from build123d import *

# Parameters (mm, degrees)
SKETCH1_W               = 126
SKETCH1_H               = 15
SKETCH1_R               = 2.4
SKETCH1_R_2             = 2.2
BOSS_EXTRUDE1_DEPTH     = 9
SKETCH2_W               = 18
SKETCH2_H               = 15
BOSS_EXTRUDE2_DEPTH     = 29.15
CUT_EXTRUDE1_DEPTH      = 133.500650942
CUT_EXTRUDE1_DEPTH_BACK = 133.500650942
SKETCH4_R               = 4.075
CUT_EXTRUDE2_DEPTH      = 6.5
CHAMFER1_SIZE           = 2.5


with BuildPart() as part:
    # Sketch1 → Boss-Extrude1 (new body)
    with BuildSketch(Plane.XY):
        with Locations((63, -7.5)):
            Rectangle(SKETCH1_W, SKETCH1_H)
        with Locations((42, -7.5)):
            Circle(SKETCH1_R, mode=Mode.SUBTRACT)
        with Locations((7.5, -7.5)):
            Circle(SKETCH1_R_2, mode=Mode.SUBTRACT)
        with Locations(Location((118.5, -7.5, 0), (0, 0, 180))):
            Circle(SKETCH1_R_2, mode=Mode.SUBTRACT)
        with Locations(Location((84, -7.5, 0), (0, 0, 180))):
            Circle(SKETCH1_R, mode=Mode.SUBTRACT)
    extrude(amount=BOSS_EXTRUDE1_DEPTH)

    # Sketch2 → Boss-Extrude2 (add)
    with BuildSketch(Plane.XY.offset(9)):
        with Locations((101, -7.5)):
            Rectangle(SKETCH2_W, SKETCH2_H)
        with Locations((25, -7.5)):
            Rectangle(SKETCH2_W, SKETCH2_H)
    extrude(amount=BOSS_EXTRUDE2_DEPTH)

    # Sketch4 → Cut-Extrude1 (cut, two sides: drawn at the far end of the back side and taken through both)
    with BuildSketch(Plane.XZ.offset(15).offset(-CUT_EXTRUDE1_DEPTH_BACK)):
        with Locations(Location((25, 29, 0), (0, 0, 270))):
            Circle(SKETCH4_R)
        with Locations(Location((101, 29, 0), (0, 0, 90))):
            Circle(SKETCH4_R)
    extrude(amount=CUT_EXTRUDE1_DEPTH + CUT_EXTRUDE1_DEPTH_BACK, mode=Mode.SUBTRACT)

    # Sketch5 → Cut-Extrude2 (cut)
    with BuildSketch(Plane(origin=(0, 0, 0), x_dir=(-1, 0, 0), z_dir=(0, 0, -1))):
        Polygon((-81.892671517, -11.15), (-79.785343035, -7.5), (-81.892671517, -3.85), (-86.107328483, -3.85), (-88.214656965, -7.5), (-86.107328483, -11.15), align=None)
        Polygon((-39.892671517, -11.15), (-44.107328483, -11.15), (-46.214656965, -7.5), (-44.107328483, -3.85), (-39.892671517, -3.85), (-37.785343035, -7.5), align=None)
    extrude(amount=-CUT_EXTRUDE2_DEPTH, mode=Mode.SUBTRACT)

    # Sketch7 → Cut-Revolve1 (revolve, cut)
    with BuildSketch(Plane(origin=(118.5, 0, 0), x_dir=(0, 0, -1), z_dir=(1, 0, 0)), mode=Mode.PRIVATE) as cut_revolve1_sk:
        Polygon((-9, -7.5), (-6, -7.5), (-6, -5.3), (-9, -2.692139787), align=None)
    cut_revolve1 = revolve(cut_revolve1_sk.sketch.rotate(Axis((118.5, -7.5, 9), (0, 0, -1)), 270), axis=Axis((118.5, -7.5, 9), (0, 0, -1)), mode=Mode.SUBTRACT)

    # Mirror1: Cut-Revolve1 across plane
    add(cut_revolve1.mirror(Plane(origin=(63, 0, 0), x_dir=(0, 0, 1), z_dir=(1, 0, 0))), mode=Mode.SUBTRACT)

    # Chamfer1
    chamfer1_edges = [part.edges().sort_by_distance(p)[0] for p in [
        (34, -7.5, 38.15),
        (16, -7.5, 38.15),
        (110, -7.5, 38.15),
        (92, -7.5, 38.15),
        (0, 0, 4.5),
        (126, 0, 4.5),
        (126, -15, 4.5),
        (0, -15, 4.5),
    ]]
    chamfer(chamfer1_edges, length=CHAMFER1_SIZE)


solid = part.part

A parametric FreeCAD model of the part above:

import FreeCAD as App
import Part
import Sketcher

V = App.Vector
Q = App.Units.Quantity


def edges_at(feature, points):
    """Names of the edges that pass closest to the given points."""
    edges = feature.Shape.Edges
    near = lambda p: min(range(len(edges)), key=lambda i: edges[i].distToShape(Part.Vertex(*p))[0])
    return sorted({f"Edge{near(p) + 1}" for p in points})

doc = App.newDocument("Part")
body = doc.addObject("PartDesign::Body", "Body")

sketch1 = body.newObject("Sketcher::SketchObject", "Sketch")
sketch1.AttachmentSupport = (doc.getObject("XY_Plane"), [""])
sketch1.MapMode = "FlatFace"
sketch1.addGeometry([
    Part.LineSegment(V(0, 0, 0), V(0, -15, 0)),
    Part.LineSegment(V(0, -15, 0), V(126, -15, 0)),
    Part.LineSegment(V(126, -15, 0), V(126, 0, 0)),
    Part.LineSegment(V(126, 0, 0), V(0, 0, 0)),
    Part.Circle(V(7.5, -7.5, 0), V(0, 0, 1), 2.2),
    Part.Circle(V(42, -7.5, 0), V(0, 0, 1), 2.4),
    Part.Circle(V(84, -7.5, 0), V(0, 0, 1), 2.4),
    Part.Circle(V(118.5, -7.5, 0), V(0, 0, 1), 2.2),
], False)
sketch1.addConstraint([
    Sketcher.Constraint("Coincident", 0, 2, 1, 1),
    Sketcher.Constraint("Coincident", 1, 2, 2, 1),
    Sketcher.Constraint("Coincident", 2, 2, 3, 1),
    Sketcher.Constraint("Coincident", 3, 2, 0, 1),
    Sketcher.Constraint("Vertical", 0),
    Sketcher.Constraint("Horizontal", 1),
    Sketcher.Constraint("Vertical", 2),
    Sketcher.Constraint("Horizontal", 3),
    Sketcher.Constraint("Coincident", 3, 2, -1, 1),
    Sketcher.Constraint("Equal", 5, 6),
    Sketcher.Constraint("Equal", 4, 7),
    Sketcher.Constraint("Horizontal", 4, 3, 5, 3),
    Sketcher.Constraint("Horizontal", 5, 3, 6, 3),
    Sketcher.Constraint("Horizontal", 6, 3, 7, 3),
    Sketcher.Constraint("Diameter", 4, Q("4.4 mm")),
    Sketcher.Constraint("Diameter", 5, Q("4.8 mm")),
    Sketcher.Constraint("DistanceX", 1, 1, 1, 2, Q("126 mm")),
    Sketcher.Constraint("DistanceY", 0, 2, 0, 1, Q("15 mm")),
    Sketcher.Constraint("DistanceX", -1, 1, 5, 3, Q("42 mm")),
    Sketcher.Constraint("DistanceX", -1, 1, 6, 3, Q("84 mm")),
    Sketcher.Constraint("DistanceX", 4, 3, 7, 3, Q("111 mm")),
    Sketcher.Constraint("DistanceX", -1, 1, 4, 3, Q("7.5 mm")),
    Sketcher.Constraint("DistanceY", 4, 3, -1, 1, Q("7.5 mm")),
])
pad1 = body.newObject("PartDesign::Pad", "Pad")
pad1.Profile = sketch1
pad1.Length = 9

sketch2 = body.newObject("Sketcher::SketchObject", "Sketch001")
sketch2.AttachmentSupport = (doc.getObject("XY_Plane"), [""])
sketch2.MapMode = "FlatFace"
sketch2.AttachmentOffset = App.Placement(V(0, 0, 9), App.Rotation())
sketch2.addGeometry([
    Part.LineSegment(V(92, 0, 0), V(92, -15, 0)),
    Part.LineSegment(V(92, -15, 0), V(110, -15, 0)),
    Part.LineSegment(V(110, -15, 0), V(110, 0, 0)),
    Part.LineSegment(V(110, 0, 0), V(92, 0, 0)),
    Part.LineSegment(V(16, 0, 0), V(16, -15, 0)),
    Part.LineSegment(V(16, -15, 0), V(34, -15, 0)),
    Part.LineSegment(V(34, -15, 0), V(34, 0, 0)),
    Part.LineSegment(V(34, 0, 0), V(16, 0, 0)),
], False)
sketch2.addConstraint([
    Sketcher.Constraint("Coincident", 0, 2, 1, 1),
    Sketcher.Constraint("Coincident", 1, 2, 2, 1),
    Sketcher.Constraint("Coincident", 2, 2, 3, 1),
    Sketcher.Constraint("Coincident", 3, 2, 0, 1),
    Sketcher.Constraint("Coincident", 4, 2, 5, 1),
    Sketcher.Constraint("Coincident", 5, 2, 6, 1),
    Sketcher.Constraint("Coincident", 6, 2, 7, 1),
    Sketcher.Constraint("Coincident", 7, 2, 4, 1),
    Sketcher.Constraint("Vertical", 0),
    Sketcher.Constraint("Horizontal", 1),
    Sketcher.Constraint("Vertical", 2),
    Sketcher.Constraint("Horizontal", 3),
    Sketcher.Constraint("Vertical", 4),
    Sketcher.Constraint("Horizontal", 5),
    Sketcher.Constraint("Vertical", 6),
    Sketcher.Constraint("Horizontal", 7),
    Sketcher.Constraint("PointOnObject", 2, 2, -1),
    Sketcher.Constraint("PointOnObject", 6, 2, -1),
    Sketcher.Constraint("Horizontal", 1, 2, 4, 2),
    Sketcher.Constraint("Equal", 3, 5),
    Sketcher.Constraint("DistanceX", 1, 1, 1, 2, Q("18 mm")),
    Sketcher.Constraint("DistanceY", 0, 2, 0, 1, Q("15 mm")),
    Sketcher.Constraint("DistanceX", -1, 1, 0, 2, Q("92 mm")),
    Sketcher.Constraint("DistanceX", -1, 1, 4, 2, Q("16 mm")),
])
pad2 = body.newObject("PartDesign::Pad", "Pad001")
pad2.Profile = sketch2
pad2.Length = 29.15

sketch3 = body.newObject("Sketcher::SketchObject", "Sketch002")
sketch3.AttachmentSupport = (doc.getObject("XZ_Plane"), [""])
sketch3.MapMode = "FlatFace"
sketch3.AttachmentOffset = App.Placement(V(0, 0, 15), App.Rotation())
sketch3.addGeometry([
    Part.Circle(V(25, 29, 0), V(0, 0, 1), 4.1),
    Part.Circle(V(101, 29, 0), V(0, 0, 1), 4.1),
], False)
sketch3.addConstraint([
    Sketcher.Constraint("Equal", 0, 1),
    Sketcher.Constraint("Horizontal", 0, 3, 1, 3),
    Sketcher.Constraint("Diameter", 0, Q("8.15 mm")),
    Sketcher.Constraint("DistanceX", -1, 1, 0, 3, Q("25 mm")),
    Sketcher.Constraint("DistanceY", -1, 1, 0, 3, Q("29 mm")),
    Sketcher.Constraint("DistanceX", -1, 1, 1, 3, Q("101 mm")),
])
pocket1 = body.newObject("PartDesign::Pocket", "Pocket")
pocket1.Profile = sketch3
pocket1.Type = "ThroughAll"
pocket1.Midplane = True

sketch4 = body.newObject("Sketcher::SketchObject", "Sketch003")
sketch4.AttachmentSupport = (doc.getObject("XY_Plane"), [""])
sketch4.MapMode = "FlatFace"
sketch4.addGeometry([
    Part.LineSegment(V(81.9, -11.2, 0), V(79.8, -7.5, 0)),
    Part.LineSegment(V(79.8, -7.5, 0), V(81.9, -3.9, 0)),
    Part.LineSegment(V(81.9, -3.9, 0), V(86.1, -3.9, 0)),
    Part.LineSegment(V(86.1, -3.9, 0), V(88.2, -7.5, 0)),
    Part.LineSegment(V(88.2, -7.5, 0), V(86.1, -11.2, 0)),
    Part.LineSegment(V(86.1, -11.2, 0), V(81.9, -11.2, 0)),
    Part.LineSegment(V(44.1, -11.2, 0), V(39.9, -11.2, 0)),
    Part.LineSegment(V(39.9, -11.2, 0), V(37.8, -7.5, 0)),
    Part.LineSegment(V(37.8, -7.5, 0), V(39.9, -3.9, 0)),
    Part.LineSegment(V(39.9, -3.9, 0), V(44.1, -3.9, 0)),
    Part.LineSegment(V(44.1, -3.9, 0), V(46.2, -7.5, 0)),
    Part.LineSegment(V(46.2, -7.5, 0), V(44.1, -11.2, 0)),
], False)
sketch4.addConstraint([
    Sketcher.Constraint("Coincident", 0, 2, 1, 1),
    Sketcher.Constraint("Coincident", 1, 2, 2, 1),
    Sketcher.Constraint("Coincident", 2, 2, 3, 1),
    Sketcher.Constraint("Coincident", 3, 2, 4, 1),
    Sketcher.Constraint("Coincident", 4, 2, 5, 1),
    Sketcher.Constraint("Coincident", 5, 2, 0, 1),
    Sketcher.Constraint("Coincident", 6, 2, 7, 1),
    Sketcher.Constraint("Coincident", 7, 2, 8, 1),
    Sketcher.Constraint("Coincident", 8, 2, 9, 1),
    Sketcher.Constraint("Coincident", 9, 2, 10, 1),
    Sketcher.Constraint("Coincident", 10, 2, 11, 1),
    Sketcher.Constraint("Coincident", 11, 2, 6, 1),
    Sketcher.Constraint("Horizontal", 2),
    Sketcher.Constraint("Horizontal", 5),
    Sketcher.Constraint("Horizontal", 6),
    Sketcher.Constraint("Horizontal", 9),
    Sketcher.Constraint("Parallel", 0, 3),
    Sketcher.Constraint("Parallel", 1, 4),
    Sketcher.Constraint("Parallel", 3, 7),
    Sketcher.Constraint("Parallel", 4, 8),
    Sketcher.Constraint("Parallel", 7, 10),
    Sketcher.Constraint("Parallel", 8, 11),
    Sketcher.Constraint("Horizontal", 0, 2, 3, 2),
    Sketcher.Constraint("Horizontal", 5, 2, 6, 2),
    Sketcher.Constraint("Horizontal", 3, 2, 7, 2),
    Sketcher.Constraint("Horizontal", 2, 2, 8, 2),
    Sketcher.Constraint("Horizontal", 7, 2, 10, 2),
    Sketcher.Constraint("Vertical", 2, 2, 4, 2),
    Sketcher.Constraint("Vertical", 1, 2, 5, 2),
    Sketcher.Constraint("Equal", 5, 6),
    Sketcher.Constraint("Angle", 0, Q("120 deg")),
    Sketcher.Constraint("DistanceX", 6, 2, 5, 2, Q("42 mm")),
    Sketcher.Constraint("DistanceY", 0, 2, -1, 1, Q("7.5 mm")),
    Sketcher.Constraint("DistanceY", 4, 2, 2, 2, Q("7.3 mm")),
    Sketcher.Constraint("DistanceX", 2, 1, 2, 2, Q("4.214657 mm")),
    Sketcher.Constraint("DistanceX", -1, 1, 1, 2, Q("81.892672 mm")),
])
pocket2 = body.newObject("PartDesign::Pocket", "Pocket001")
pocket2.Profile = sketch4
pocket2.Length = 6.5
pocket2.Reversed = True

sketch5 = body.newObject("Sketcher::SketchObject", "Sketch004")
sketch5.AttachmentSupport = (doc.getObject("YZ_Plane"), [""])
sketch5.MapMode = "FlatFace"
sketch5.AttachmentOffset = App.Placement(V(0, 0, 118.5), App.Rotation())
sketch5.addGeometry([
    Part.LineSegment(V(-7.5, 9, 0), V(-7.5, 6, 0)),
    Part.LineSegment(V(-7.5, 6, 0), V(-5.3, 6, 0)),
    Part.LineSegment(V(-5.3, 6, 0), V(-2.7, 9, 0)),
    Part.LineSegment(V(-2.7, 9, 0), V(-7.5, 9, 0)),
], False)
sketch5.addGeometry(Part.LineSegment(V(-7.5, 9, 0), V(-7.5, 6, 0)), True)
sketch5.addConstraint([
    Sketcher.Constraint("Coincident", 0, 2, 1, 1),
    Sketcher.Constraint("Coincident", 1, 2, 2, 1),
    Sketcher.Constraint("Coincident", 2, 2, 3, 1),
    Sketcher.Constraint("Coincident", 3, 2, 0, 1),
    Sketcher.Constraint("Vertical", 0),
    Sketcher.Constraint("Horizontal", 1),
    Sketcher.Constraint("Horizontal", 3),
    Sketcher.Constraint("Vertical", 4),
    Sketcher.Constraint("Coincident", 4, 1, 3, 2),
    Sketcher.Constraint("Horizontal", 1, 2, 4, 2),
    Sketcher.Constraint("DistanceY", 0, 2, 0, 1, Q("3 mm")),
    Sketcher.Constraint("Angle", 2, Q("49 deg")),
    Sketcher.Constraint("DistanceX", 1, 1, 1, 2, Q("2.2 mm")),
    Sketcher.Constraint("DistanceY", -1, 1, 0, 2, Q("6 mm")),
    Sketcher.Constraint("DistanceX", 0, 2, -1, 1, Q("7.5 mm")),
])
groove = body.newObject("PartDesign::Groove", "Groove")
groove.Profile = sketch5
groove.ReferenceAxis = (sketch5, ["Axis0"])
groove.Angle = 360
doc.recompute()

datumplane = body.newObject("PartDesign::Plane", "DatumPlane")
datumplane.AttachmentSupport = (doc.getObject("YZ_Plane"), [""])
datumplane.MapMode = "FlatFace"
datumplane.AttachmentOffset = App.Placement(V(0, 0, 63), App.Rotation())
mirrored = body.newObject("PartDesign::Mirrored", "Mirrored")
mirrored.Originals = [groove]
mirrored.MirrorPlane = (datumplane, [""])
body.Tip = mirrored
doc.recompute()

chamfer = body.newObject("PartDesign::Chamfer", "Chamfer")
chamfer.Base = (mirrored, edges_at(mirrored, [
    (34, -7.5, 38.15),
    (16, -7.5, 38.15),
    (110, -7.5, 38.15),
    (92, -7.5, 38.15),
    (0, 0, 4.5),
    (126, 0, 4.5),
    (126, -15, 4.5),
    (0, -15, 4.5),
]))
chamfer.Size = 2.5

doc.recompute()
